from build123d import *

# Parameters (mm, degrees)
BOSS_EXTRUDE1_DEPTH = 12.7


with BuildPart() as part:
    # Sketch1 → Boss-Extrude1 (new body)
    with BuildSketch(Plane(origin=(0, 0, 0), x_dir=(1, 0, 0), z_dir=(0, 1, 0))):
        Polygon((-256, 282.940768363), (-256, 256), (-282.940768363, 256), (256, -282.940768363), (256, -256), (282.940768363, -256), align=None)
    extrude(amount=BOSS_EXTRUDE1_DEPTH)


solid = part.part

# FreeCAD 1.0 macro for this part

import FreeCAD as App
import Part
import Sketcher
from FreeCAD import Vector
Q = App.Units.Quantity

doc = App.newDocument("Part")
body = doc.addObject("PartDesign::Body", "Body")

sketch1 = body.newObject("Sketcher::SketchObject", "Sketch")
sketch1.AttachmentSupport = (doc.getObject("XZ_Plane"), [""])
sketch1.MapMode = "FlatFace"
sketch1.addGeometry(Part.LineSegment(Vector(-256, -283, 0), Vector(-256, -256, 0)), False)
sketch1.addGeometry(Part.LineSegment(Vector(-256, -256, 0), Vector(-283, -256, 0)), False)
sketch1.addGeometry(Part.LineSegment(Vector(-283, -256, 0), Vector(256, 283, 0)), False)
sketch1.addGeometry(Part.LineSegment(Vector(256, 283, 0), Vector(256, 256, 0)), False)
sketch1.addGeometry(Part.LineSegment(Vector(256, 256, 0), Vector(283, 256, 0)), False)
sketch1.addGeometry(Part.LineSegment(Vector(283, 256, 0), Vector(-256, -283, 0)), False)
sketch1.addConstraint(Sketcher.Constraint("Coincident", 0, 2, 1, 1))
sketch1.addConstraint(Sketcher.Constraint("Coincident", 1, 2, 2, 1))
sketch1.addConstraint(Sketcher.Constraint("Coincident", 2, 2, 3, 1))
sketch1.addConstraint(Sketcher.Constraint("Coincident", 3, 2, 4, 1))
sketch1.addConstraint(Sketcher.Constraint("Coincident", 4, 2, 5, 1))
sketch1.addConstraint(Sketcher.Constraint("Coincident", 5, 2, 0, 1))
sketch1.addConstraint(Sketcher.Constraint("Vertical", 0))
sketch1.addConstraint(Sketcher.Constraint("Horizontal", 1))
sketch1.addConstraint(Sketcher.Constraint("Vertical", 3))
sketch1.addConstraint(Sketcher.Constraint("Horizontal", 4))
sketch1.addConstraint(Sketcher.Constraint("Symmetric", 0, 2, 3, 2, -1, 1))
sketch1.addConstraint(Sketcher.Constraint("Parallel", 2, 5))
sketch1.addConstraint(Sketcher.Constraint("Equal", 1, 4))
sketch1.addConstraint(Sketcher.Constraint("Equal", 4, 0))
sketch1.addConstraint(Sketcher.Constraint("Angle", 2, Q("45 deg")))
sketch1.addConstraint(Sketcher.Constraint("DistanceX", 1, 2, 1, 1, Q("26.940768 mm")))
sketch1.addConstraint(Sketcher.Constraint("DistanceX", 0, 2, -1, 1, Q("256 mm")))
pad1 = body.newObject("PartDesign::Pad", "Pad")
pad1.Profile = sketch1
pad1.Length = Q("0.5 in")
pad1.Reversed = True

doc.recompute()
